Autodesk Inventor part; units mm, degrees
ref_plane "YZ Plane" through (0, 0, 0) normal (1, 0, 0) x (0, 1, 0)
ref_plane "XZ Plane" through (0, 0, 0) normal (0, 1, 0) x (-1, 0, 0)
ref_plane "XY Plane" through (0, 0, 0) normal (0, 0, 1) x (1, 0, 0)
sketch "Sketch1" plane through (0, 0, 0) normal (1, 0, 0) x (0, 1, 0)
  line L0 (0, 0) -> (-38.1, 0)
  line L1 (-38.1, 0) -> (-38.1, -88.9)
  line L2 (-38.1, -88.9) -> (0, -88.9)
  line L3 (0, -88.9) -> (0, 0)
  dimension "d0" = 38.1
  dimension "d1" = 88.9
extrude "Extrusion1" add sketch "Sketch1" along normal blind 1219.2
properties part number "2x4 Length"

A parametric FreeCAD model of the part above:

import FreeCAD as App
import Part
import Sketcher

V = App.Vector
Q = App.Units.Quantity


def add_polygon(sketch, points):
    """Adds a closed chain of lines whose ends are joined by coincident constraints."""
    first, n = sketch.GeometryCount, len(points)
    for a, b in zip(points, points[1:] + points[:1]):
        sketch.addGeometry(Part.LineSegment(App.Vector(*a, 0), App.Vector(*b, 0)), False)
    for i in range(n):
        sketch.addConstraint(Sketcher.Constraint("Coincident", first + i, 2, first + (i + 1) % n, 1))

doc = App.newDocument("Part")
params = doc.addObject("Spreadsheet::Sheet", "Params")
for row, (alias, value) in enumerate([
    ("sketch1_width", "1.5 in"),
    ("sketch1_height", "3.5 in"),
    ("pad1_length", "48 in"),
], start=1):
    params.set(f"A{row}", alias)
    params.set(f"B{row}", "=" + value)
    params.setAlias(f"B{row}", alias)

body = doc.addObject("PartDesign::Body", "Body")

sketch1 = body.newObject("Sketcher::SketchObject", "Sketch")
sketch1.AttachmentSupport = (doc.getObject("YZ_Plane"), [""])
sketch1.MapMode = "FlatFace"
add_polygon(sketch1, [(0, -89), (0, 0), (-38, 0), (-38, -89)])
sketch1.addConstraint([
    Sketcher.Constraint("Vertical", 0),
    Sketcher.Constraint("Horizontal", 1),
    Sketcher.Constraint("Vertical", 2),
    Sketcher.Constraint("Horizontal", 3),
    Sketcher.Constraint("Coincident", 0, 2, -1, 1),
    Sketcher.Constraint("DistanceX", 1, 2, 1, 1, Q("1.5 in")),
    Sketcher.Constraint("DistanceY", 0, 1, 0, 2, Q("3.5 in")),
])
sketch1.setExpression("Constraints[9]", "Params.sketch1_width")
sketch1.setExpression("Constraints[10]", "Params.sketch1_height")
pad1 = body.newObject("PartDesign::Pad", "Pad")
pad1.Profile = sketch1
pad1.setExpression("Length", "Params.pad1_length")

doc.recompute()
